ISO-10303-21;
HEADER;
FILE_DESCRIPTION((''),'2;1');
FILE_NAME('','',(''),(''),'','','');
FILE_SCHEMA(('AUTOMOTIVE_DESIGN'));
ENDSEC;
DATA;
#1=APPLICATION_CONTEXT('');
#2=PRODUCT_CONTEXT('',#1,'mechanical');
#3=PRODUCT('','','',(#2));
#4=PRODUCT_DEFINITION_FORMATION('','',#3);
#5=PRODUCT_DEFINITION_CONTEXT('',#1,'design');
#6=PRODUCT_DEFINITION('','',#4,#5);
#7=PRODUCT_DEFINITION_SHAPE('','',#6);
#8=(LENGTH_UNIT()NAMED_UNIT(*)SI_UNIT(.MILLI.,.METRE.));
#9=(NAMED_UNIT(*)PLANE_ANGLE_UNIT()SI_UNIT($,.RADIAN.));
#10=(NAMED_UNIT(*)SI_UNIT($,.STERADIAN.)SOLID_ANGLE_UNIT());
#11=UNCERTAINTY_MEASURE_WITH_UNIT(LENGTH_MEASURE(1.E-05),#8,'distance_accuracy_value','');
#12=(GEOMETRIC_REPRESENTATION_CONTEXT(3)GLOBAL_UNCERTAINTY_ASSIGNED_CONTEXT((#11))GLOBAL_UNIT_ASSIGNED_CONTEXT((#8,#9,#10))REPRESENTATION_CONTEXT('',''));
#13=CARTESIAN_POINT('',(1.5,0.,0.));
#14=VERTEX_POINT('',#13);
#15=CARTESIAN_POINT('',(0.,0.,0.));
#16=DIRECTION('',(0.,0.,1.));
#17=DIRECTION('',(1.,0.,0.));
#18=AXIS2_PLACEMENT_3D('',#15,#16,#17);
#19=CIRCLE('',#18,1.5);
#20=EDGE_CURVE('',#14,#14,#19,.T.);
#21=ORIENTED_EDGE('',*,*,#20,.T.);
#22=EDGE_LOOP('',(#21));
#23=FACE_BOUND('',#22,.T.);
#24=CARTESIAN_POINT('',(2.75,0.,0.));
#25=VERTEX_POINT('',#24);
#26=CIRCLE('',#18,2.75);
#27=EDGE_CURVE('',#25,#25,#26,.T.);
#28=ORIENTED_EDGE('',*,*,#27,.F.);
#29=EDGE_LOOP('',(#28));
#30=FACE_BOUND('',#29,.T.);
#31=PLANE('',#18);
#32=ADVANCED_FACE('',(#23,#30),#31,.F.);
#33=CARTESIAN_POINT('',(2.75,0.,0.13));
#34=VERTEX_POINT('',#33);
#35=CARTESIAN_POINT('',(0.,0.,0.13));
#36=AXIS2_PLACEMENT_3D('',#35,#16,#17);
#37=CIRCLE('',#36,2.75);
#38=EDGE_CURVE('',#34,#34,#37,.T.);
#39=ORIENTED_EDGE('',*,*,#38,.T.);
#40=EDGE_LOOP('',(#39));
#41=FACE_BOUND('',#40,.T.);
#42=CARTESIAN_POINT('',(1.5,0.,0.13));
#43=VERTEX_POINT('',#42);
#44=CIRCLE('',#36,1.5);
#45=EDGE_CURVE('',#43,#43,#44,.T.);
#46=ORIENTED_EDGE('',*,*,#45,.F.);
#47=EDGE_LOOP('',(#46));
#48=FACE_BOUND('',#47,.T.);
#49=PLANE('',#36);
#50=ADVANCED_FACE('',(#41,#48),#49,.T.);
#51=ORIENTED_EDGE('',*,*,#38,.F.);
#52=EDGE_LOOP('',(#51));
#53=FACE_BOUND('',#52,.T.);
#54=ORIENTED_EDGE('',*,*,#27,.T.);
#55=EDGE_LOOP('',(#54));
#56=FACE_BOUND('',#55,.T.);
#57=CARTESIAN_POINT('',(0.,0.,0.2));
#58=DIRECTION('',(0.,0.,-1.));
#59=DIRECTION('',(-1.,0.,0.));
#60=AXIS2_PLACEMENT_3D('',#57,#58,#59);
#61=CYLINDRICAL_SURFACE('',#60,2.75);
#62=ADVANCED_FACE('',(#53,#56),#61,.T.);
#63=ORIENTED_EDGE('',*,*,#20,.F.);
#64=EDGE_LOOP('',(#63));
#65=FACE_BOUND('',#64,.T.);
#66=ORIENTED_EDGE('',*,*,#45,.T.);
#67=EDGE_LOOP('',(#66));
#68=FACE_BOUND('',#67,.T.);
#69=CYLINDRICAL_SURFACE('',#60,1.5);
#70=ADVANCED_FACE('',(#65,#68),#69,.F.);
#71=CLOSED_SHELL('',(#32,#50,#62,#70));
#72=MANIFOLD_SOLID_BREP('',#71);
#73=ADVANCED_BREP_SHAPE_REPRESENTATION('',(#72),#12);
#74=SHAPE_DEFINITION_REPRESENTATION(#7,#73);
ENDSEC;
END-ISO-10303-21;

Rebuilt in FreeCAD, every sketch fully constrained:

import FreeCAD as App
import Part
import Sketcher

V = App.Vector
Q = App.Units.Quantity

doc = App.newDocument("Part")
body = doc.addObject("PartDesign::Body", "Body")

sketch1 = body.newObject("Sketcher::SketchObject", "Sketch")
sketch1.AttachmentSupport = (doc.getObject("XY_Plane"), [""])
sketch1.MapMode = "FlatFace"
sketch1.addGeometry(Part.Circle(V(0, 0, 0), V(0, 0, 1), 2.75), False)
sketch1.addGeometry(Part.Circle(V(0, 0, 0), V(0, 0, 1), 1.5), False)
sketch1.addConstraint(Sketcher.Constraint("Coincident", 0, 3, -1, 1))
sketch1.addConstraint(Sketcher.Constraint("Coincident", 1, 3, -1, 1))
sketch1.addConstraint(Sketcher.Constraint("Diameter", 1, Q("3 mm")))
sketch1.addConstraint(Sketcher.Constraint("Diameter", 0, Q("5.5 mm")))
pad1 = body.newObject("PartDesign::Pad", "Pad")
pad1.Profile = sketch1
pad1.Length = 0.2

sketch2 = body.newObject("Sketcher::SketchObject", "Sketch001")
sketch2.AttachmentSupport = (doc.getObject("XY_Plane"), [""])
sketch2.MapMode = "FlatFace"
sketch2.AttachmentOffset = App.Placement(V(0, 0, 0.2), App.Rotation())
sketch2.addGeometry(Part.Circle(V(0, 0, 0), V(0, 0, 1), 4.835938), False)
sketch2.addConstraint(Sketcher.Constraint("Coincident", 0, 3, -1, 1))
sketch2.addConstraint(Sketcher.Constraint("Diameter", 0, Q("9.671876 mm")))
pocket1 = body.newObject("PartDesign::Pocket", "Pocket")
pocket1.Profile = sketch2
pocket1.Length = 0.07

doc.recompute()
